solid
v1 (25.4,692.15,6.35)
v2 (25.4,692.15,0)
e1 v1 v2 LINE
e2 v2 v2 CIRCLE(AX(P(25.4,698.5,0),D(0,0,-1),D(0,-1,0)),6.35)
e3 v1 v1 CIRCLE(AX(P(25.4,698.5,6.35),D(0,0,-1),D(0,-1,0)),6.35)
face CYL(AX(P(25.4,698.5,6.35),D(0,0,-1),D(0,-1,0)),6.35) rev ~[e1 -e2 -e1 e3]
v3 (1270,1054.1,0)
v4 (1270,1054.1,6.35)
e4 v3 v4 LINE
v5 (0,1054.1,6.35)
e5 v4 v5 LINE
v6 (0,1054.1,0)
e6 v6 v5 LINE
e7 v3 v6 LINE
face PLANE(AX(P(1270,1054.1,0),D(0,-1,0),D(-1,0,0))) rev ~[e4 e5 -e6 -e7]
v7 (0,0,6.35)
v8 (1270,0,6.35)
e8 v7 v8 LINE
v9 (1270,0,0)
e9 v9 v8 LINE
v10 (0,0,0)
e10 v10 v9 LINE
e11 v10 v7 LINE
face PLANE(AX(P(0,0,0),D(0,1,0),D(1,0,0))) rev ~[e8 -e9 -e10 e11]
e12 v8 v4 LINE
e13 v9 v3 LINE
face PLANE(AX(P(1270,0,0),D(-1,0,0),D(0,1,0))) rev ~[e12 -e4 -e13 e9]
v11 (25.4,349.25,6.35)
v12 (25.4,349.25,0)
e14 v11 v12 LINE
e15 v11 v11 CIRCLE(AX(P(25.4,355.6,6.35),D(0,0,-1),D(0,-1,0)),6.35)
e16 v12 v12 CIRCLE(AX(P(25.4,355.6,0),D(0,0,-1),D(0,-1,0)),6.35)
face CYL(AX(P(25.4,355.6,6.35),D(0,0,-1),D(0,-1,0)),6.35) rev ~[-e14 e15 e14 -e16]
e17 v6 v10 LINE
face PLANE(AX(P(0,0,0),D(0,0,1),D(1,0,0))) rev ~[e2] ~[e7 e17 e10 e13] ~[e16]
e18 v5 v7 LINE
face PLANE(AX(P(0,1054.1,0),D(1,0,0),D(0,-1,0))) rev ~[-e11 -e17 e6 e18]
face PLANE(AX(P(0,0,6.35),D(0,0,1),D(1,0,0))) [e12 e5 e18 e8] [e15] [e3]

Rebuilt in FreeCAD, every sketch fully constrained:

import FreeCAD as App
import Part
import Sketcher
Q = App.Units.Quantity

doc = App.newDocument("Part")
body = doc.addObject("PartDesign::Body", "Body")

sketch1 = doc.addObject("Sketcher::SketchObject", "Sketch")
body.addObject(sketch1)
sketch1.AttachmentSupport = (doc.XY_Plane, [""])
sketch1.MapMode = "FlatFace"
sketch1.addGeometry(Part.LineSegment(App.Vector(0, 1054, 0), App.Vector(0, 0, 0)), False)
sketch1.addGeometry(Part.LineSegment(App.Vector(0, 0, 0), App.Vector(1270, 0, 0)), False)
sketch1.addGeometry(Part.LineSegment(App.Vector(1270, 0, 0), App.Vector(1270, 1054, 0)), False)
sketch1.addGeometry(Part.LineSegment(App.Vector(1270, 1054, 0), App.Vector(0, 1054, 0)), False)
sketch1.addConstraint(Sketcher.Constraint("Coincident", 0, 2, 1, 1))
sketch1.addConstraint(Sketcher.Constraint("Coincident", 1, 2, 2, 1))
sketch1.addConstraint(Sketcher.Constraint("Coincident", 2, 2, 3, 1))
sketch1.addConstraint(Sketcher.Constraint("Coincident", 3, 2, 0, 1))
sketch1.addConstraint(Sketcher.Constraint("Vertical", 0))
sketch1.addConstraint(Sketcher.Constraint("Horizontal", 1))
sketch1.addConstraint(Sketcher.Constraint("Vertical", 2))
sketch1.addConstraint(Sketcher.Constraint("Horizontal", 3))
sketch1.addConstraint(Sketcher.Constraint("Coincident", 0, 2, -1, 1))
sketch1.addConstraint(Sketcher.Constraint("DistanceX", 1, 1, 1, 2, Q("50 in")))
sketch1.addConstraint(Sketcher.Constraint("DistanceY", 0, 2, 0, 1, Q("41.5 in")))
pad1 = doc.addObject("PartDesign::Pad", "Pad")
body.addObject(pad1)
pad1.Profile = sketch1
pad1.Length = Q("0.25 in")

sketch2 = doc.addObject("Sketcher::SketchObject", "Sketch001")
body.addObject(sketch2)
sketch2.AttachmentSupport = (doc.XY_Plane, [""])
sketch2.MapMode = "FlatFace"
sketch2.AttachmentOffset = App.Placement(App.Vector(0, 0, 0.25 * 25.4), App.Rotation())
sketch2.addGeometry(Part.Circle(App.Vector(25, 698, 0), App.Vector(0, 0, 1), 6), False)
sketch2.addConstraint(Sketcher.Constraint("Diameter", 0, Q("0.5 in")))
sketch2.addConstraint(Sketcher.Constraint("DistanceX", -1, 1, 0, 3, Q("1 in")))
sketch2.addConstraint(Sketcher.Constraint("DistanceY", -1, 1, 0, 3, Q("27.5 in")))
doc.recompute()
hole = doc.addObject("PartDesign::Hole", "Hole")
body.addObject(hole)
hole.Profile = sketch2
hole.ThreadType = "None"
hole.Diameter = Q("0.5 in")
hole.DepthType = "Dimension"
hole.Depth = Q("1 in")
hole.DrillPoint = "Angled"
hole.DrillPointAngle = 118
doc.recompute()

linearpattern = doc.addObject("PartDesign::LinearPattern", "LinearPattern")
body.addObject(linearpattern)
linearpattern.Originals = [hole]
linearpattern.Direction = (doc.Y_Axis, [""])
linearpattern.Mode = "offset"
linearpattern.Offset = Q("13.5 in")
linearpattern.Occurrences = 2
linearpattern.Reversed = True
body.Tip = linearpattern

doc.recompute()
